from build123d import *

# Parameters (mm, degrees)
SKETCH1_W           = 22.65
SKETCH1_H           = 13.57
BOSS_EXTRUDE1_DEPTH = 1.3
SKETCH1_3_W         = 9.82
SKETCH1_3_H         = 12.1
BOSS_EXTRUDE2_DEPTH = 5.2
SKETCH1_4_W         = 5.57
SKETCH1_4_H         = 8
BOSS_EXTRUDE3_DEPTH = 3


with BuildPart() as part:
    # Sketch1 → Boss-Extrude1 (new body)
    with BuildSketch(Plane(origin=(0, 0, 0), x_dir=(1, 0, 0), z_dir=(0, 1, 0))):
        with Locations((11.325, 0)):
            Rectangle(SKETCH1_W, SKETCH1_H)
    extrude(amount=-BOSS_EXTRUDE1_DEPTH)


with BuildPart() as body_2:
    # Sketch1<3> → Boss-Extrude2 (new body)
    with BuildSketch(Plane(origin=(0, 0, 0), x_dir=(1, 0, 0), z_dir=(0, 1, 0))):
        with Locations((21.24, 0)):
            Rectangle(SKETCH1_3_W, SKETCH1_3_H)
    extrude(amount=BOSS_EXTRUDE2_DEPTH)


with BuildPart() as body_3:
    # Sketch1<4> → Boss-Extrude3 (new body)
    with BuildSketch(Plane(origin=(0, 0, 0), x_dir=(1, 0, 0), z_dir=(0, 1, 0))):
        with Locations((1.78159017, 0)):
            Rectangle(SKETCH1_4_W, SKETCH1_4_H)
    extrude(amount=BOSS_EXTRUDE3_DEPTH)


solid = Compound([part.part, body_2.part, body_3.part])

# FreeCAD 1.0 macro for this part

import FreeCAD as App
import Part
import Sketcher

V = App.Vector
Q = App.Units.Quantity


def add_polygon(sketch, points):
    """Adds a closed chain of lines whose ends are joined by coincident constraints."""
    first, n = sketch.GeometryCount, len(points)
    for a, b in zip(points, points[1:] + points[:1]):
        sketch.addGeometry(Part.LineSegment(App.Vector(*a, 0), App.Vector(*b, 0)), False)
    for i in range(n):
        sketch.addConstraint(Sketcher.Constraint("Coincident", first + i, 2, first + (i + 1) % n, 1))

doc = App.newDocument("Part")
body = doc.addObject("PartDesign::Body", "Body")

sketch1 = body.newObject("Sketcher::SketchObject", "Sketch")
sketch1.AttachmentSupport = (doc.getObject("XZ_Plane"), [""])
sketch1.MapMode = "FlatFace"
add_polygon(sketch1, [(0, -7), (0, 7), (23, 7), (23, -7)])
sketch1.addConstraint([
    Sketcher.Constraint("Vertical", 0),
    Sketcher.Constraint("Horizontal", 1),
    Sketcher.Constraint("Vertical", 2),
    Sketcher.Constraint("Horizontal", 3),
    Sketcher.Constraint("Symmetric", 0, 2, 3, 2, -1, 1),
    Sketcher.Constraint("DistanceX", 1, 1, 1, 2, Q("22.65 mm")),
    Sketcher.Constraint("DistanceY", 0, 1, 0, 2, Q("13.57 mm")),
])
pad1 = body.newObject("PartDesign::Pad", "Pad")
pad1.Profile = sketch1
pad1.Length = 1.3
body2 = doc.addObject("PartDesign::Body", "Body001")

sketch2 = body2.newObject("Sketcher::SketchObject", "Sketch001")
sketch2.AttachmentSupport = (doc.getObject("XZ_Plane001"), [""])
sketch2.MapMode = "FlatFace"
add_polygon(sketch2, [(16, -6), (16, 6), (26, 6), (26, -6)])
sketch2.addConstraint([
    Sketcher.Constraint("Vertical", 0),
    Sketcher.Constraint("Horizontal", 1),
    Sketcher.Constraint("Vertical", 2),
    Sketcher.Constraint("Horizontal", 3),
    Sketcher.Constraint("DistanceY", 0, 1, 0, 2, Q("12.1 mm")),
    Sketcher.Constraint("DistanceX", 1, 1, 1, 2, Q("9.82 mm")),
    Sketcher.Constraint("DistanceX", -1, 1, 0, 2, Q("16.33 mm")),
    Sketcher.Constraint("DistanceY", -1, 1, 0, 2, Q("6.05 mm")),
])
pad2 = body2.newObject("PartDesign::Pad", "Pad001")
pad2.Profile = sketch2
pad2.Length = 5.2
pad2.Reversed = True
body3 = doc.addObject("PartDesign::Body", "Body002")

sketch3 = body3.newObject("Sketcher::SketchObject", "Sketch002")
sketch3.AttachmentSupport = (doc.getObject("XZ_Plane002"), [""])
sketch3.MapMode = "FlatFace"
add_polygon(sketch3, [(-1, -4), (-1, 4), (5, 4), (5, -4)])
sketch3.addConstraint([
    Sketcher.Constraint("Vertical", 0),
    Sketcher.Constraint("Horizontal", 1),
    Sketcher.Constraint("Vertical", 2),
    Sketcher.Constraint("Horizontal", 3),
    Sketcher.Constraint("DistanceY", 0, 1, 0, 2, Q("8 mm")),
    Sketcher.Constraint("DistanceY", -1, 1, 0, 2, Q("4 mm")),
    Sketcher.Constraint("DistanceX", 1, 1, 1, 2, Q("5.57 mm")),
    Sketcher.Constraint("DistanceX", 0, 2, -1, 1, Q("1.00341 mm")),
])
pad3 = body3.newObject("PartDesign::Pad", "Pad002")
pad3.Profile = sketch3
pad3.Length = 3
pad3.Reversed = True

doc.recompute()
